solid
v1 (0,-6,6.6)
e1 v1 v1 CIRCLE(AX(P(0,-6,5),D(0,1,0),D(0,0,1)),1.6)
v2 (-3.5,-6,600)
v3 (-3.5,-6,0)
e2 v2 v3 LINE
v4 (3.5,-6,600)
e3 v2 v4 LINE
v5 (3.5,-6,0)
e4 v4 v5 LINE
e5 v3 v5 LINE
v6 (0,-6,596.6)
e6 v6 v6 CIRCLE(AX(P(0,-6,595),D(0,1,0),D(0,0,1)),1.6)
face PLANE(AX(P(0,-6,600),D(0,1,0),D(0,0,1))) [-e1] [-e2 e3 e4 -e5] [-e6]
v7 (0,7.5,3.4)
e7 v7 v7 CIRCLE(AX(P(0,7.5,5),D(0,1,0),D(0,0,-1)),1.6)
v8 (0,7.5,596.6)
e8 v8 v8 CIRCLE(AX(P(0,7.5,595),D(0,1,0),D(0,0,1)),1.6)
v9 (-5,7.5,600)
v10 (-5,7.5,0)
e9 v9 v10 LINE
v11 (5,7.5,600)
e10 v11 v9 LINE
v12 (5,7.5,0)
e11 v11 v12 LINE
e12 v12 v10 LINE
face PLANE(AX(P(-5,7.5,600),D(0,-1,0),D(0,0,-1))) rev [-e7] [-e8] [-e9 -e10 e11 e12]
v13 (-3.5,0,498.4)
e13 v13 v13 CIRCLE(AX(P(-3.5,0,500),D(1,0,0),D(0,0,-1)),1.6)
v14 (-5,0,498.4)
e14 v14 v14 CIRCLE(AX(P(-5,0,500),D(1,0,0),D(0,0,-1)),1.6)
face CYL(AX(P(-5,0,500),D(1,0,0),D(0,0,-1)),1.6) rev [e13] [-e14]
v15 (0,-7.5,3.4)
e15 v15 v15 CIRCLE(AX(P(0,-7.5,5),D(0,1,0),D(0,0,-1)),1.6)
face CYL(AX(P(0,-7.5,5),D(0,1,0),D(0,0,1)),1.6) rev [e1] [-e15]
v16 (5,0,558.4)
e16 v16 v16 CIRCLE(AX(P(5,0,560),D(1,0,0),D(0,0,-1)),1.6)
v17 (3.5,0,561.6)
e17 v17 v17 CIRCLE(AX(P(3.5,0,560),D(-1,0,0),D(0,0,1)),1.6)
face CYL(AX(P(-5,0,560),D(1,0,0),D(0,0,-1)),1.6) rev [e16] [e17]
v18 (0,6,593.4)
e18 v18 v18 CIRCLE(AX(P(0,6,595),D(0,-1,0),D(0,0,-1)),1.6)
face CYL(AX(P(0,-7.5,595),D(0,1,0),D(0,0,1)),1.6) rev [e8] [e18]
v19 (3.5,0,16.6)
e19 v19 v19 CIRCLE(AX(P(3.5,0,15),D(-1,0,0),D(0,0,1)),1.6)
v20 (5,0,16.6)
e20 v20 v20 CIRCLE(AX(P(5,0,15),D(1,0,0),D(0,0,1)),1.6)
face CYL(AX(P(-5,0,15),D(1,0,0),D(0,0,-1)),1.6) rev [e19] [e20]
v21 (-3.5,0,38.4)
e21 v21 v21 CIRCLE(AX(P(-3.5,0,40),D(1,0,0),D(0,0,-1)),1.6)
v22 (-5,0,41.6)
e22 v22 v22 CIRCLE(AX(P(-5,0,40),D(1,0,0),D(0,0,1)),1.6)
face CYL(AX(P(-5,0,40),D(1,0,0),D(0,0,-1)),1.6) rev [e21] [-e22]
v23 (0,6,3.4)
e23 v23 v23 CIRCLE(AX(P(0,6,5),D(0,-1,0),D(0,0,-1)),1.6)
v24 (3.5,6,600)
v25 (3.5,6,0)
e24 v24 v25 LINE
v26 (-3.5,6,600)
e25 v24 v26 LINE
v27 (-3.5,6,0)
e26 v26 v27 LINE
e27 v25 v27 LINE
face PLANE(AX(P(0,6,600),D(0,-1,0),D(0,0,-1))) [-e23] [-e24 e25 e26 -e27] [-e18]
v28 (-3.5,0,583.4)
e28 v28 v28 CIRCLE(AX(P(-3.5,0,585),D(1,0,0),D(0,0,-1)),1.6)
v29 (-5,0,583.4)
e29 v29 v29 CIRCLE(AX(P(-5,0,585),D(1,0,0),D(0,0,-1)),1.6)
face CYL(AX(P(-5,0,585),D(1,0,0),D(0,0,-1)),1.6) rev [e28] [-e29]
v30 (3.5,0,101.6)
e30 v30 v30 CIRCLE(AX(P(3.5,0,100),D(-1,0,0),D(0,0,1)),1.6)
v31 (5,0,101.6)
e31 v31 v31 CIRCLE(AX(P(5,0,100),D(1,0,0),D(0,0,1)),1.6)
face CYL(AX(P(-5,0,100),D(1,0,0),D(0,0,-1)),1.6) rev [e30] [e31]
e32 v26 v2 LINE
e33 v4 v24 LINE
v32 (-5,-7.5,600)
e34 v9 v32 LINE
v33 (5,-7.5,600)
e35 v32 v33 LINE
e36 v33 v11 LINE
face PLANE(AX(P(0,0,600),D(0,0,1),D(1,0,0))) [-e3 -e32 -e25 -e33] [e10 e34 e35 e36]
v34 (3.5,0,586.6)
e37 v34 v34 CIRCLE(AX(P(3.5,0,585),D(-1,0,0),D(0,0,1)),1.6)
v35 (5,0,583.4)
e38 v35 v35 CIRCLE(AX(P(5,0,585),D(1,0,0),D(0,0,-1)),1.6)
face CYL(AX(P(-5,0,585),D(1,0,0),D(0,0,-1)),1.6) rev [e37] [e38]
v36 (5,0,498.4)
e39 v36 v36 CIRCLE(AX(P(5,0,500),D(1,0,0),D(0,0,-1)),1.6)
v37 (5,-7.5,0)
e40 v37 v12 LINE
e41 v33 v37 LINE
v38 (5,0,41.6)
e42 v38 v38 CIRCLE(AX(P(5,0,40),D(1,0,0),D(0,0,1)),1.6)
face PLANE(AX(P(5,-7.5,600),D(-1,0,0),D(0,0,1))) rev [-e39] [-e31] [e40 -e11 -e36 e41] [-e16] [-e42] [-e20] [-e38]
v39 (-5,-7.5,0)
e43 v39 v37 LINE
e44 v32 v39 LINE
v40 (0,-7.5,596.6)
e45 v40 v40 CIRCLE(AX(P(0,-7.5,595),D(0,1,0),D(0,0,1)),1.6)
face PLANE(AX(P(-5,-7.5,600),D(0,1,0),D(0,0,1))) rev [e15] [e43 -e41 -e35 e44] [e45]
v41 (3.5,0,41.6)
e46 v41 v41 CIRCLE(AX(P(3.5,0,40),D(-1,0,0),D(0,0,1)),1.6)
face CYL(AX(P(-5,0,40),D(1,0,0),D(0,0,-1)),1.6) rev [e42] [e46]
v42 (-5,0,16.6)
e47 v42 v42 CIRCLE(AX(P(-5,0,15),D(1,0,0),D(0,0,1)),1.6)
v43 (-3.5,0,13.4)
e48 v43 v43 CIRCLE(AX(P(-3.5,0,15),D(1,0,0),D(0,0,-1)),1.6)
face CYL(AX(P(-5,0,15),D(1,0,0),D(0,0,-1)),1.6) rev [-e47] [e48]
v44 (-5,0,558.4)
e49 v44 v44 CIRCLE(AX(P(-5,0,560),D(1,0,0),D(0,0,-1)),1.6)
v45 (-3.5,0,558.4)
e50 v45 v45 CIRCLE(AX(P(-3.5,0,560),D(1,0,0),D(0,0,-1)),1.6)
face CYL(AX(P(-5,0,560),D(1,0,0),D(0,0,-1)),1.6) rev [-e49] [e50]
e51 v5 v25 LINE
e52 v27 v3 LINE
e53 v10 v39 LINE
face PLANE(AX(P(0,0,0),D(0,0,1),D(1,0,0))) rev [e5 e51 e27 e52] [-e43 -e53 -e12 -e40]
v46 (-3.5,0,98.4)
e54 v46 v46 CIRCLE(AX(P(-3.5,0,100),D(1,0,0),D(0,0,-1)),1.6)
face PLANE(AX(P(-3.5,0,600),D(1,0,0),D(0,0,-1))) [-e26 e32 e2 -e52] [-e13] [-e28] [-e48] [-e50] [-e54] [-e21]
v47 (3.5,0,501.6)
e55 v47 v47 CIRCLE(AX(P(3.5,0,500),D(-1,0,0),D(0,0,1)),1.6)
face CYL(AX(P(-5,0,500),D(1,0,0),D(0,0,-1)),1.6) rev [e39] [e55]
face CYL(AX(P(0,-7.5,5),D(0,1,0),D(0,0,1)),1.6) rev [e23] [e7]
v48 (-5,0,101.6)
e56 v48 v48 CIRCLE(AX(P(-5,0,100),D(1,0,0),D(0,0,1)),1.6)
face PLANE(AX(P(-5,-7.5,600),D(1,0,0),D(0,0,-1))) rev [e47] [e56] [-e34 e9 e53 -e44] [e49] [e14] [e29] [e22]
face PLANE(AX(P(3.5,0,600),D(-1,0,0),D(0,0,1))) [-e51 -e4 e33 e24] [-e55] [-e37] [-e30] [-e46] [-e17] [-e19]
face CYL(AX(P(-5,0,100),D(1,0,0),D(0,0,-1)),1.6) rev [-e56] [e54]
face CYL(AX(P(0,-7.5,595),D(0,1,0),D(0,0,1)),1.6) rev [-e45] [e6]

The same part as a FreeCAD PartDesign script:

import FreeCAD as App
import Part
import Sketcher


def add_polygon(sketch, points):
    """Adds a closed chain of lines whose ends are joined by coincident constraints."""
    first, n = sketch.GeometryCount, len(points)
    for a, b in zip(points, points[1:] + points[:1]):
        sketch.addGeometry(Part.LineSegment(App.Vector(*a, 0), App.Vector(*b, 0)), False)
    for i in range(n):
        sketch.addConstraint(Sketcher.Constraint("Coincident", first + i, 2, first + (i + 1) % n, 1))

doc = App.newDocument("Part")
body = doc.addObject("PartDesign::Body", "Body")

sketch1 = body.newObject("Sketcher::SketchObject", "Sketch")
sketch1.AttachmentSupport = (doc.getObject("XY_Plane"), [""])
sketch1.MapMode = "FlatFace"
add_polygon(sketch1, [(-5, 8), (-5, -8), (5, -8), (5, 8)])
add_polygon(sketch1, [(4, -6), (-4, -6), (-4, 6), (4, 6)])
sketch1.addConstraint(Sketcher.Constraint("Vertical", 0))
sketch1.addConstraint(Sketcher.Constraint("Horizontal", 1))
sketch1.addConstraint(Sketcher.Constraint("Vertical", 2))
sketch1.addConstraint(Sketcher.Constraint("Horizontal", 3))
sketch1.addConstraint(Sketcher.Constraint("Horizontal", 4))
sketch1.addConstraint(Sketcher.Constraint("Vertical", 5))
sketch1.addConstraint(Sketcher.Constraint("Horizontal", 6))
sketch1.addConstraint(Sketcher.Constraint("Vertical", 7))
sketch1.addConstraint(Sketcher.Constraint("Symmetric", 0, 2, 2, 2, -1, 1))
sketch1.addConstraint(Sketcher.Constraint("Symmetric", 4, 2, 6, 2, -1, 1))
sketch1.addConstraint(Sketcher.Constraint("DistanceX", 1, 1, 1, 2, 10.0))
sketch1.addConstraint(Sketcher.Constraint("DistanceX", 4, 2, 4, 1, 7.0))
sketch1.addConstraint(Sketcher.Constraint("DistanceY", 0, 2, 0, 1, 15.0))
sketch1.addConstraint(Sketcher.Constraint("DistanceY", 5, 1, 5, 2, 12.0))
pad1 = body.newObject("PartDesign::Pad", "Pad")
pad1.Profile = sketch1
pad1.Length = 600

sketch2 = body.newObject("Sketcher::SketchObject", "Sketch001")
sketch2.AttachmentSupport = (doc.getObject("XZ_Plane"), [""])
sketch2.MapMode = "FlatFace"
sketch2.AttachmentOffset = App.Placement(App.Vector(0, 0, -7.5), App.Rotation())
sketch2.addGeometry(Part.Circle(App.Vector(0, 595, 0), App.Vector(0, 0, 1), 1.6), False)
sketch2.addGeometry(Part.Circle(App.Vector(0, 5, 0), App.Vector(0, 0, 1), 1.6), False)
sketch2.addConstraint(Sketcher.Constraint("Equal", 0, 1))
sketch2.addConstraint(Sketcher.Constraint("PointOnObject", 0, 3, -2))
sketch2.addConstraint(Sketcher.Constraint("PointOnObject", 1, 3, -2))
sketch2.addConstraint(Sketcher.Constraint("Diameter", 0, 3.2))
sketch2.addConstraint(Sketcher.Constraint("DistanceY", -1, 1, 0, 3, 595.0))
sketch2.addConstraint(Sketcher.Constraint("DistanceY", -1, 1, 1, 3, 5.0))
pocket1 = body.newObject("PartDesign::Pocket", "Pocket")
pocket1.Profile = sketch2
pocket1.Type = "ThroughAll"
pocket1.Reversed = True

sketch3 = body.newObject("Sketcher::SketchObject", "Sketch002")
sketch3.AttachmentSupport = (doc.getObject("YZ_Plane"), [""])
sketch3.MapMode = "FlatFace"
sketch3.AttachmentOffset = App.Placement(App.Vector(0, 0, 5), App.Rotation())
sketch3.addGeometry(Part.Circle(App.Vector(0, 560, 0), App.Vector(0, 0, 1), 1.6), False)
sketch3.addGeometry(Part.Circle(App.Vector(0, 40, 0), App.Vector(0, 0, 1), 1.6), False)
sketch3.addGeometry(Part.Circle(App.Vector(0, 500, 0), App.Vector(0, 0, 1), 1.6), False)
sketch3.addGeometry(Part.Circle(App.Vector(0, 100, 0), App.Vector(0, 0, 1), 1.6), False)
sketch3.addGeometry(Part.Circle(App.Vector(0, 585, 0), App.Vector(0, 0, 1), 1.6), False)
sketch3.addGeometry(Part.Circle(App.Vector(0, 15, 0), App.Vector(0, 0, 1), 1.6), False)
sketch3.addConstraint(Sketcher.Constraint("Equal", 0, 1))
sketch3.addConstraint(Sketcher.Constraint("Equal", 1, 2))
sketch3.addConstraint(Sketcher.Constraint("Equal", 2, 3))
sketch3.addConstraint(Sketcher.Constraint("Equal", 3, 4))
sketch3.addConstraint(Sketcher.Constraint("Equal", 4, 5))
sketch3.addConstraint(Sketcher.Constraint("PointOnObject", 0, 3, -2))
sketch3.addConstraint(Sketcher.Constraint("PointOnObject", 1, 3, -2))
sketch3.addConstraint(Sketcher.Constraint("PointOnObject", 2, 3, -2))
sketch3.addConstraint(Sketcher.Constraint("PointOnObject", 3, 3, -2))
sketch3.addConstraint(Sketcher.Constraint("PointOnObject", 4, 3, -2))
sketch3.addConstraint(Sketcher.Constraint("PointOnObject", 5, 3, -2))
sketch3.addConstraint(Sketcher.Constraint("Diameter", 0, 3.2))
sketch3.addConstraint(Sketcher.Constraint("DistanceY", -1, 1, 0, 3, 560.0))
sketch3.addConstraint(Sketcher.Constraint("DistanceY", -1, 1, 1, 3, 40.0))
sketch3.addConstraint(Sketcher.Constraint("DistanceY", -1, 1, 2, 3, 500.0))
sketch3.addConstraint(Sketcher.Constraint("DistanceY", -1, 1, 3, 3, 100.0))
sketch3.addConstraint(Sketcher.Constraint("DistanceY", -1, 1, 4, 3, 585.0))
sketch3.addConstraint(Sketcher.Constraint("DistanceY", -1, 1, 5, 3, 15.0))
pocket2 = body.newObject("PartDesign::Pocket", "Pocket001")
pocket2.Profile = sketch3
pocket2.Type = "ThroughAll"

doc.recompute()
